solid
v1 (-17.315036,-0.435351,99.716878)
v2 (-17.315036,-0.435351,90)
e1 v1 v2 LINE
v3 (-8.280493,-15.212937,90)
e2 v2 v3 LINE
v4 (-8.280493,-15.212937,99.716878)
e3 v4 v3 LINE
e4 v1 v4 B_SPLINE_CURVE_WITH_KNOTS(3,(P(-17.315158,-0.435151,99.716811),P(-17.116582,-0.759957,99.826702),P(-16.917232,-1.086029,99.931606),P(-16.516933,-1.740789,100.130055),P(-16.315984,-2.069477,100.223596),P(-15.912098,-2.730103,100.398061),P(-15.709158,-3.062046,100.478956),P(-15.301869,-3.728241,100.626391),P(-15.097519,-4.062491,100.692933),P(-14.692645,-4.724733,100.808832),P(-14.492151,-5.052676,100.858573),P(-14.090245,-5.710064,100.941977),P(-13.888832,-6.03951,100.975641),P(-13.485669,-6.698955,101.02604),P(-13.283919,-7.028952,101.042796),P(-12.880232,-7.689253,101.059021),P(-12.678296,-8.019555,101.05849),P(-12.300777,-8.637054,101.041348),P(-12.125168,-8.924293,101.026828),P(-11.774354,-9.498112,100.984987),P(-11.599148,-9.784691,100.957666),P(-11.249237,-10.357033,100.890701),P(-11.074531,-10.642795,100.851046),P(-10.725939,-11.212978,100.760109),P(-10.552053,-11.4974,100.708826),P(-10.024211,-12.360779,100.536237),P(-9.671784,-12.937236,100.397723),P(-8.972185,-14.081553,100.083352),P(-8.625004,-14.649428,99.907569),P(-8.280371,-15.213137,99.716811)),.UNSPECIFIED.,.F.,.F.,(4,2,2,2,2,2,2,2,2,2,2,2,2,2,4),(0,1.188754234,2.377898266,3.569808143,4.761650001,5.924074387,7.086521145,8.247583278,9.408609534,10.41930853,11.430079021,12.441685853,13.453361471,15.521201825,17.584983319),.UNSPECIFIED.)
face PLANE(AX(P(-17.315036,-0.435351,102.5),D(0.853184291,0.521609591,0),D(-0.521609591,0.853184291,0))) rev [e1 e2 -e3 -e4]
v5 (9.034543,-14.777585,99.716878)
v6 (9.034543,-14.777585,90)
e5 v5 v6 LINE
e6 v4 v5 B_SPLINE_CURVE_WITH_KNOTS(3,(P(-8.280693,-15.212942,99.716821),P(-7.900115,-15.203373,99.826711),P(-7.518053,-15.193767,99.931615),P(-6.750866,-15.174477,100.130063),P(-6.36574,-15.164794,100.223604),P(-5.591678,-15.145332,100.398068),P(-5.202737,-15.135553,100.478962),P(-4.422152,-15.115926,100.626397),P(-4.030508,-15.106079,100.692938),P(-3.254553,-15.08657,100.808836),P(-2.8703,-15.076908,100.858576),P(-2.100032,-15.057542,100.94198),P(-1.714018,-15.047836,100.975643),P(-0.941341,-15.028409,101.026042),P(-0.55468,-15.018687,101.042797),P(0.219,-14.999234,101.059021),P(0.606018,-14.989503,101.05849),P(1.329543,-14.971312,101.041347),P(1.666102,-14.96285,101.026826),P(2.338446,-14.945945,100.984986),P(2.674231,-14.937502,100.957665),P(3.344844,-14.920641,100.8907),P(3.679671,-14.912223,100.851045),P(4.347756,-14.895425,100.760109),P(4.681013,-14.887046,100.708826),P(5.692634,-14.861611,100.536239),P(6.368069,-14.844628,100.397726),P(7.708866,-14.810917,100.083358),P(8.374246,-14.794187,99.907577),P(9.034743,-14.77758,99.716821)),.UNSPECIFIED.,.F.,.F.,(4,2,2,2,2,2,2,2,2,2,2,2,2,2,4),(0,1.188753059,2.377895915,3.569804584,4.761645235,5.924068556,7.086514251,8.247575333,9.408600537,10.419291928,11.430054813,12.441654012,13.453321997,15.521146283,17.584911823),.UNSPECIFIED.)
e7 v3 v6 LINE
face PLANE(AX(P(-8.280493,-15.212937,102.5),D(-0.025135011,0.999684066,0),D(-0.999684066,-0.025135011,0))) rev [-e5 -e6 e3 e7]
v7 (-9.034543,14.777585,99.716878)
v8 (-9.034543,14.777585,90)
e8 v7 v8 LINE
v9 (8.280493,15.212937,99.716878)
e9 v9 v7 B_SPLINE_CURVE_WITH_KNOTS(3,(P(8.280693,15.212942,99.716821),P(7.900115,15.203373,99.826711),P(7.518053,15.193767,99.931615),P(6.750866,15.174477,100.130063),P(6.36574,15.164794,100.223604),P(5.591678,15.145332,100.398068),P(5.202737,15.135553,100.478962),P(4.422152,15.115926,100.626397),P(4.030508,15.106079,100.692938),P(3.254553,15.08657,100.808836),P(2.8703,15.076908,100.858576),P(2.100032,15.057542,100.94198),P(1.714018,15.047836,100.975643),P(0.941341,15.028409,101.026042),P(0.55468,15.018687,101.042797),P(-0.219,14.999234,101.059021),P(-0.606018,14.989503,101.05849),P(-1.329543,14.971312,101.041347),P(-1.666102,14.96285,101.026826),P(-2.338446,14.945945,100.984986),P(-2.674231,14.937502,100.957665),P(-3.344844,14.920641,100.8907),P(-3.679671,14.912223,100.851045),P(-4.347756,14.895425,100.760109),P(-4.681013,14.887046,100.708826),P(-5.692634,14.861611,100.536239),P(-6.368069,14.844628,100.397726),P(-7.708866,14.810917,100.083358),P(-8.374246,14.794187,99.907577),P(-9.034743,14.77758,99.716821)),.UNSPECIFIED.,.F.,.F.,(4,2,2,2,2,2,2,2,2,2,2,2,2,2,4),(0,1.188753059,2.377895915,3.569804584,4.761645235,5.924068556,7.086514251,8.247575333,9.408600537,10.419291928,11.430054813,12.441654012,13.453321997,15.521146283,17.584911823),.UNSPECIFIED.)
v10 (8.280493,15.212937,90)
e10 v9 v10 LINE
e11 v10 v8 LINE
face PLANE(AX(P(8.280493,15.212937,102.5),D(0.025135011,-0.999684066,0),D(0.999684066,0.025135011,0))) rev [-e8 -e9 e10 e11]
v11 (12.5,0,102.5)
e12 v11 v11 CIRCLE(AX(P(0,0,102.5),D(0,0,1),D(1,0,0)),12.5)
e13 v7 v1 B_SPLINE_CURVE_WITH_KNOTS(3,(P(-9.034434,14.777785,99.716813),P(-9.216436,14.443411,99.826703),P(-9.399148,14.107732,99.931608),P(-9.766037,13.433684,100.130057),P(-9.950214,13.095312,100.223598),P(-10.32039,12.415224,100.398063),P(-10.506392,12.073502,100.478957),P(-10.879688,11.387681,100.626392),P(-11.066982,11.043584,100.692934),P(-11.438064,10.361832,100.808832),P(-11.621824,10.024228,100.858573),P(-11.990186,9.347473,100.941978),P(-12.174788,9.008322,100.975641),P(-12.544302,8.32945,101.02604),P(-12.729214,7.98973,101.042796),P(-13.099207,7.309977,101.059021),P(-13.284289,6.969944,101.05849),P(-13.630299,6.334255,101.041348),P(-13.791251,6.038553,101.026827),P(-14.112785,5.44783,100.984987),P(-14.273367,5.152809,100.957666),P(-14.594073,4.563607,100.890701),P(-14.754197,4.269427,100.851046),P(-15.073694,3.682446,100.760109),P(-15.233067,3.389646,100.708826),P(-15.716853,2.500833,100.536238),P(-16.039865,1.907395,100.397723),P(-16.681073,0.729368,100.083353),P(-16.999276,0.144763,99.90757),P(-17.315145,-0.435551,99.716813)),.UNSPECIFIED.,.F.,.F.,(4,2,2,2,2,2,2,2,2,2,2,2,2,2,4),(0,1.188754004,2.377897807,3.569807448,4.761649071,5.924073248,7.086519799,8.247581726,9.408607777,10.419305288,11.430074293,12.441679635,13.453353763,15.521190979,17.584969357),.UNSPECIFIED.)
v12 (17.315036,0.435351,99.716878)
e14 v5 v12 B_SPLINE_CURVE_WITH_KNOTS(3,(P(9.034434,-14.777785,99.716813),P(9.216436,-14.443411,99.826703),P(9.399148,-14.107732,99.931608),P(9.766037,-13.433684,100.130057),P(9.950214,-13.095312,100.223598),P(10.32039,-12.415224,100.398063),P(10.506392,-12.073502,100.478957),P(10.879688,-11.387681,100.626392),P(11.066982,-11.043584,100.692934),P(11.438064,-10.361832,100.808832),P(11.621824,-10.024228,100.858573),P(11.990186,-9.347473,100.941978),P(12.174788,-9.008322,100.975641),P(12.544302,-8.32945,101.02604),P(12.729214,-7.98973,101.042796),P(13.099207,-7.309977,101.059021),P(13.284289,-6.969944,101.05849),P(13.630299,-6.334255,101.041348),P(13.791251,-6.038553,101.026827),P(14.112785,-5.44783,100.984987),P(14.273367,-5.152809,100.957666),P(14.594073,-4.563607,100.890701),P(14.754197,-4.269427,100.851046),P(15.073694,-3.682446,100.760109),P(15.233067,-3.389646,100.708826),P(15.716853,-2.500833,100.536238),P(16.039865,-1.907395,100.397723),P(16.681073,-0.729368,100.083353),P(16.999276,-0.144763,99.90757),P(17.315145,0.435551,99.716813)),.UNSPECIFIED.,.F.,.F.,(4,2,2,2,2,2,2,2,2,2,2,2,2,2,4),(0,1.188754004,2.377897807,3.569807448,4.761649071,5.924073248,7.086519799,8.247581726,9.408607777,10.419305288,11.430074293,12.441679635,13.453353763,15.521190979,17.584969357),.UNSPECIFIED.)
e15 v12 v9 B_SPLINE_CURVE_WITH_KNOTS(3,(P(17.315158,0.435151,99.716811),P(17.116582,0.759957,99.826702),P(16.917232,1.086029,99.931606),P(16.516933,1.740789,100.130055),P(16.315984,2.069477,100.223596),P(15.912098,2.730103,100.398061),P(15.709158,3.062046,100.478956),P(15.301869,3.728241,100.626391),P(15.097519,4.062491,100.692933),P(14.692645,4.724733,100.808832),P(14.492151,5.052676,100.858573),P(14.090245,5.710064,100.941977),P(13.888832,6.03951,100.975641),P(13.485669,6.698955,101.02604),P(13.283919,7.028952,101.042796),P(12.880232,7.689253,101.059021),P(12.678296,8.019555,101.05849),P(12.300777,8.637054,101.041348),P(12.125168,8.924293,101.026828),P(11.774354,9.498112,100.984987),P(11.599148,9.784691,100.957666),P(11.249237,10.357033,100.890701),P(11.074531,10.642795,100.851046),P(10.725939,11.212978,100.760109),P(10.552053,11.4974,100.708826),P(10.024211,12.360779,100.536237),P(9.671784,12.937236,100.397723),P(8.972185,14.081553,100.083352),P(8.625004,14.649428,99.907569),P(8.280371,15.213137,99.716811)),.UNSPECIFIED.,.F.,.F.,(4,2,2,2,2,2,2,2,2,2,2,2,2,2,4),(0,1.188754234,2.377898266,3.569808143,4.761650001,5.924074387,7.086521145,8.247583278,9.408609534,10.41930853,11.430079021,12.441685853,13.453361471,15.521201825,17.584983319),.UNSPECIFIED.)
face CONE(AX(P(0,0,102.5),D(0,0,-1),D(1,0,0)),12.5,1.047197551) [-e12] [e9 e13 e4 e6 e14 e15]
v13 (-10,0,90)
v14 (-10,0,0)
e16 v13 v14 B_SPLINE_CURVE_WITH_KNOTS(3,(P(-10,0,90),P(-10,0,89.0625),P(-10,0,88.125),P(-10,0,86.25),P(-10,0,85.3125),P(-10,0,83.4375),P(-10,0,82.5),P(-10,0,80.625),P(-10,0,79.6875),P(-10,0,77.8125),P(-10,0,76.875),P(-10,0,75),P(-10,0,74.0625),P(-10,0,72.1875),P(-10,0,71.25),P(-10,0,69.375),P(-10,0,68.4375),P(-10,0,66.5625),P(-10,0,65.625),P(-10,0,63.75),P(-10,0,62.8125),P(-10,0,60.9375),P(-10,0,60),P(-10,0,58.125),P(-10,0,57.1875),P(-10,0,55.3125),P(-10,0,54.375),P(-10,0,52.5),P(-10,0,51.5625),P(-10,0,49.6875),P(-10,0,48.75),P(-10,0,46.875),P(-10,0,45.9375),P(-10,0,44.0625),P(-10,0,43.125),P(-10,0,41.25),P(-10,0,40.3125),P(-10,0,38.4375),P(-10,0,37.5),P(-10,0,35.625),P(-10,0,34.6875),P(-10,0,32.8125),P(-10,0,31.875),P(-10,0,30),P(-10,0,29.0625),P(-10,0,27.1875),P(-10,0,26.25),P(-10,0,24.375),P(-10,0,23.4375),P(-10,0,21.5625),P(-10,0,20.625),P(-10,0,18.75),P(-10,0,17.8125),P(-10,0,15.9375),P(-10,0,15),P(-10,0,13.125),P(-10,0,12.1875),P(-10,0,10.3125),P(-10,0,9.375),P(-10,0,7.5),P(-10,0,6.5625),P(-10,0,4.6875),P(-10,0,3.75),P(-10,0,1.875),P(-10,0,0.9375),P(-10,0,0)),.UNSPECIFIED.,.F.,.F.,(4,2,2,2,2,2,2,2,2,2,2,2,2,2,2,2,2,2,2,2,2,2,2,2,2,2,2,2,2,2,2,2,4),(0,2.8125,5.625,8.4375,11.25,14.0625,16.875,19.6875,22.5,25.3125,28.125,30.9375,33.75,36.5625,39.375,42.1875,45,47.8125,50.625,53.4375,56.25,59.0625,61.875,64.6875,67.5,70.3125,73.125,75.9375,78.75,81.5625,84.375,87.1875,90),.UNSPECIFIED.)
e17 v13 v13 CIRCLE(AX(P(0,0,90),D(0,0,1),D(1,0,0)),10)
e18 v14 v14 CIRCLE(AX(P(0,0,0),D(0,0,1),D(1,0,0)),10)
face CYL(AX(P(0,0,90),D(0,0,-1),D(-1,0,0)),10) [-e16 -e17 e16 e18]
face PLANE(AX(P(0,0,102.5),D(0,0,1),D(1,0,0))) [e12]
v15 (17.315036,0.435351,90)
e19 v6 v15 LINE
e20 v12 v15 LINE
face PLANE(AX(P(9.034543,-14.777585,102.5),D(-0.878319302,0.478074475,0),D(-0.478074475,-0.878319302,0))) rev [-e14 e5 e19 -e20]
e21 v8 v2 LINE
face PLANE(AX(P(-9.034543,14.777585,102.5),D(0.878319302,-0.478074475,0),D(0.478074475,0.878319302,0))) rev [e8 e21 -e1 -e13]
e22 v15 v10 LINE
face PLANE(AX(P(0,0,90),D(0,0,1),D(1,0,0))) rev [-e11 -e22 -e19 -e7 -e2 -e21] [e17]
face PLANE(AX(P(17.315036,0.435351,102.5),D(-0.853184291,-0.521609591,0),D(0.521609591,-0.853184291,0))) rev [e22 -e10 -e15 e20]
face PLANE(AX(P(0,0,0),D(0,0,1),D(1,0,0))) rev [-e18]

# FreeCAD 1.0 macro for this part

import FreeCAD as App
import Part
import Sketcher


def faces_at(feature, points):
    """Names of the faces that lie closest to the given points."""
    faces = feature.Shape.Faces
    near = lambda p: min(range(len(faces)), key=lambda i: faces[i].distToShape(Part.Vertex(*p))[0])
    return sorted({f"Face{near(p) + 1}" for p in points})

doc = App.newDocument("Part")
body = doc.addObject("PartDesign::Body", "Body")

sketch1 = body.newObject("Sketcher::SketchObject", "Sketch")
sketch1.AttachmentSupport = (doc.getObject("XY_Plane"), [""])
sketch1.MapMode = "FlatFace"
sketch1.addGeometry(Part.Circle(App.Vector(0, 0, 0), App.Vector(0, 0, 1), 10), False)
sketch1.addConstraint(Sketcher.Constraint("Coincident", 0, 3, -1, 1))
sketch1.addConstraint(Sketcher.Constraint("Diameter", 0, 20.0))
pad1 = body.newObject("PartDesign::Pad", "Pad")
pad1.Profile = sketch1
pad1.Length = 90

sketch2 = body.newObject("Sketcher::SketchObject", "Sketch001")
sketch2.AttachmentSupport = (doc.getObject("XY_Plane"), [""])
sketch2.MapMode = "FlatFace"
sketch2.AttachmentOffset = App.Placement(App.Vector(0, 0, 90), App.Rotation())
sketch2.addGeometry(Part.LineSegment(App.Vector(8, 15, 0), App.Vector(-9, 15, 0)), False)
sketch2.addGeometry(Part.LineSegment(App.Vector(-9, 15, 0), App.Vector(-17, 0, 0)), False)
sketch2.addGeometry(Part.LineSegment(App.Vector(-17, 0, 0), App.Vector(-8, -15, 0)), False)
sketch2.addGeometry(Part.LineSegment(App.Vector(-8, -15, 0), App.Vector(9, -15, 0)), False)
sketch2.addGeometry(Part.LineSegment(App.Vector(9, -15, 0), App.Vector(17, 0, 0)), False)
sketch2.addGeometry(Part.LineSegment(App.Vector(17, 0, 0), App.Vector(8, 15, 0)), False)
sketch2.addConstraint(Sketcher.Constraint("Coincident", 0, 2, 1, 1))
sketch2.addConstraint(Sketcher.Constraint("Coincident", 1, 2, 2, 1))
sketch2.addConstraint(Sketcher.Constraint("Coincident", 2, 2, 3, 1))
sketch2.addConstraint(Sketcher.Constraint("Coincident", 3, 2, 4, 1))
sketch2.addConstraint(Sketcher.Constraint("Coincident", 4, 2, 5, 1))
sketch2.addConstraint(Sketcher.Constraint("Coincident", 5, 2, 0, 1))
sketch2.addConstraint(Sketcher.Constraint("Symmetric", 0, 2, 3, 2, -1, 1))
sketch2.addConstraint(Sketcher.Constraint("Symmetric", 1, 2, 4, 2, -1, 1))
sketch2.addConstraint(Sketcher.Constraint("Symmetric", 2, 2, 5, 2, -1, 1))
sketch2.addConstraint(Sketcher.Constraint("Equal", 0, 1))
sketch2.addConstraint(Sketcher.Constraint("Equal", 1, 2))
sketch2.addConstraint(Sketcher.Constraint("Distance", 0, 17.320508))
sketch2.addConstraint(Sketcher.Constraint("DistanceY", 1, 2, -1, 1, 0.435351))
sketch2.addConstraint(Sketcher.Constraint("DistanceX", 0, 2, 2, 2, 0.75405))
sketch2.addConstraint(Sketcher.Constraint("DistanceY", 2, 2, 0, 2, 29.990522))
pad2 = body.newObject("PartDesign::Pad", "Pad001")
pad2.Profile = sketch2
pad2.Length = 12.5
body2 = doc.addObject("PartDesign::Body", "Body001")

sketch3 = body2.newObject("Sketcher::SketchObject", "Sketch002")
sketch3.AttachmentSupport = (doc.getObject("XY_Plane001"), [""])
sketch3.MapMode = "FlatFace"
sketch3.AttachmentOffset = App.Placement(App.Vector(0, 0, 102.5), App.Rotation())
sketch3.addGeometry(Part.LineSegment(App.Vector(-38, 36, 0), App.Vector(-38, -36, 0)), False)
sketch3.addGeometry(Part.LineSegment(App.Vector(-38, -36, 0), App.Vector(38, -36, 0)), False)
sketch3.addGeometry(Part.LineSegment(App.Vector(38, -36, 0), App.Vector(38, 36, 0)), False)
sketch3.addGeometry(Part.LineSegment(App.Vector(38, 36, 0), App.Vector(-38, 36, 0)), False)
sketch3.addGeometry(Part.Circle(App.Vector(0, 0, 0), App.Vector(0, 0, 1), 12), False)
sketch3.addConstraint(Sketcher.Constraint("Coincident", 0, 2, 1, 1))
sketch3.addConstraint(Sketcher.Constraint("Coincident", 1, 2, 2, 1))
sketch3.addConstraint(Sketcher.Constraint("Coincident", 2, 2, 3, 1))
sketch3.addConstraint(Sketcher.Constraint("Coincident", 3, 2, 0, 1))
sketch3.addConstraint(Sketcher.Constraint("Vertical", 0))
sketch3.addConstraint(Sketcher.Constraint("Horizontal", 1))
sketch3.addConstraint(Sketcher.Constraint("Vertical", 2))
sketch3.addConstraint(Sketcher.Constraint("Horizontal", 3))
sketch3.addConstraint(Sketcher.Constraint("Coincident", 4, 3, -1, 1))
sketch3.addConstraint(Sketcher.Constraint("Symmetric", 0, 2, 2, 2, -1, 1))
sketch3.addConstraint(Sketcher.Constraint("Diameter", 4, 25.0))
sketch3.addConstraint(Sketcher.Constraint("DistanceX", 1, 1, 1, 2, 76.428))
sketch3.addConstraint(Sketcher.Constraint("DistanceY", 0, 2, 0, 1, 72.224))
pad3 = body2.newObject("PartDesign::Pad", "Pad002")
pad3.Profile = sketch3
pad3.Length = 5
pad3.Reversed = True
doc.recompute()

datumplane = body2.newObject("PartDesign::Plane", "DatumPlane")
datumplane.AttachmentSupport = (doc.getObject("XY_Plane001"), [""])
datumplane.MapMode = "FlatFace"
datumplane.AttachmentOffset = App.Placement(App.Vector(0, 0, 102.5), App.Rotation())
draft = body2.newObject("PartDesign::Draft", "Draft")
draft.Base = (pad3, faces_at(pad3, [
    (0, -36.112, 100),
    (38.214, 0, 100),
    (0, 36.112, 100),
    (-38.214, 0, 100),
    (-12.5, 0, 100),
]))
draft.NeutralPlane = (datumplane, [""])
draft.Angle = 60
draft.Reversed = True
doc.recompute()

boolean = body.newObject("PartDesign::Boolean", "Boolean")
boolean.Type = "Cut"
boolean.addObjects([body2])

doc.recompute()
